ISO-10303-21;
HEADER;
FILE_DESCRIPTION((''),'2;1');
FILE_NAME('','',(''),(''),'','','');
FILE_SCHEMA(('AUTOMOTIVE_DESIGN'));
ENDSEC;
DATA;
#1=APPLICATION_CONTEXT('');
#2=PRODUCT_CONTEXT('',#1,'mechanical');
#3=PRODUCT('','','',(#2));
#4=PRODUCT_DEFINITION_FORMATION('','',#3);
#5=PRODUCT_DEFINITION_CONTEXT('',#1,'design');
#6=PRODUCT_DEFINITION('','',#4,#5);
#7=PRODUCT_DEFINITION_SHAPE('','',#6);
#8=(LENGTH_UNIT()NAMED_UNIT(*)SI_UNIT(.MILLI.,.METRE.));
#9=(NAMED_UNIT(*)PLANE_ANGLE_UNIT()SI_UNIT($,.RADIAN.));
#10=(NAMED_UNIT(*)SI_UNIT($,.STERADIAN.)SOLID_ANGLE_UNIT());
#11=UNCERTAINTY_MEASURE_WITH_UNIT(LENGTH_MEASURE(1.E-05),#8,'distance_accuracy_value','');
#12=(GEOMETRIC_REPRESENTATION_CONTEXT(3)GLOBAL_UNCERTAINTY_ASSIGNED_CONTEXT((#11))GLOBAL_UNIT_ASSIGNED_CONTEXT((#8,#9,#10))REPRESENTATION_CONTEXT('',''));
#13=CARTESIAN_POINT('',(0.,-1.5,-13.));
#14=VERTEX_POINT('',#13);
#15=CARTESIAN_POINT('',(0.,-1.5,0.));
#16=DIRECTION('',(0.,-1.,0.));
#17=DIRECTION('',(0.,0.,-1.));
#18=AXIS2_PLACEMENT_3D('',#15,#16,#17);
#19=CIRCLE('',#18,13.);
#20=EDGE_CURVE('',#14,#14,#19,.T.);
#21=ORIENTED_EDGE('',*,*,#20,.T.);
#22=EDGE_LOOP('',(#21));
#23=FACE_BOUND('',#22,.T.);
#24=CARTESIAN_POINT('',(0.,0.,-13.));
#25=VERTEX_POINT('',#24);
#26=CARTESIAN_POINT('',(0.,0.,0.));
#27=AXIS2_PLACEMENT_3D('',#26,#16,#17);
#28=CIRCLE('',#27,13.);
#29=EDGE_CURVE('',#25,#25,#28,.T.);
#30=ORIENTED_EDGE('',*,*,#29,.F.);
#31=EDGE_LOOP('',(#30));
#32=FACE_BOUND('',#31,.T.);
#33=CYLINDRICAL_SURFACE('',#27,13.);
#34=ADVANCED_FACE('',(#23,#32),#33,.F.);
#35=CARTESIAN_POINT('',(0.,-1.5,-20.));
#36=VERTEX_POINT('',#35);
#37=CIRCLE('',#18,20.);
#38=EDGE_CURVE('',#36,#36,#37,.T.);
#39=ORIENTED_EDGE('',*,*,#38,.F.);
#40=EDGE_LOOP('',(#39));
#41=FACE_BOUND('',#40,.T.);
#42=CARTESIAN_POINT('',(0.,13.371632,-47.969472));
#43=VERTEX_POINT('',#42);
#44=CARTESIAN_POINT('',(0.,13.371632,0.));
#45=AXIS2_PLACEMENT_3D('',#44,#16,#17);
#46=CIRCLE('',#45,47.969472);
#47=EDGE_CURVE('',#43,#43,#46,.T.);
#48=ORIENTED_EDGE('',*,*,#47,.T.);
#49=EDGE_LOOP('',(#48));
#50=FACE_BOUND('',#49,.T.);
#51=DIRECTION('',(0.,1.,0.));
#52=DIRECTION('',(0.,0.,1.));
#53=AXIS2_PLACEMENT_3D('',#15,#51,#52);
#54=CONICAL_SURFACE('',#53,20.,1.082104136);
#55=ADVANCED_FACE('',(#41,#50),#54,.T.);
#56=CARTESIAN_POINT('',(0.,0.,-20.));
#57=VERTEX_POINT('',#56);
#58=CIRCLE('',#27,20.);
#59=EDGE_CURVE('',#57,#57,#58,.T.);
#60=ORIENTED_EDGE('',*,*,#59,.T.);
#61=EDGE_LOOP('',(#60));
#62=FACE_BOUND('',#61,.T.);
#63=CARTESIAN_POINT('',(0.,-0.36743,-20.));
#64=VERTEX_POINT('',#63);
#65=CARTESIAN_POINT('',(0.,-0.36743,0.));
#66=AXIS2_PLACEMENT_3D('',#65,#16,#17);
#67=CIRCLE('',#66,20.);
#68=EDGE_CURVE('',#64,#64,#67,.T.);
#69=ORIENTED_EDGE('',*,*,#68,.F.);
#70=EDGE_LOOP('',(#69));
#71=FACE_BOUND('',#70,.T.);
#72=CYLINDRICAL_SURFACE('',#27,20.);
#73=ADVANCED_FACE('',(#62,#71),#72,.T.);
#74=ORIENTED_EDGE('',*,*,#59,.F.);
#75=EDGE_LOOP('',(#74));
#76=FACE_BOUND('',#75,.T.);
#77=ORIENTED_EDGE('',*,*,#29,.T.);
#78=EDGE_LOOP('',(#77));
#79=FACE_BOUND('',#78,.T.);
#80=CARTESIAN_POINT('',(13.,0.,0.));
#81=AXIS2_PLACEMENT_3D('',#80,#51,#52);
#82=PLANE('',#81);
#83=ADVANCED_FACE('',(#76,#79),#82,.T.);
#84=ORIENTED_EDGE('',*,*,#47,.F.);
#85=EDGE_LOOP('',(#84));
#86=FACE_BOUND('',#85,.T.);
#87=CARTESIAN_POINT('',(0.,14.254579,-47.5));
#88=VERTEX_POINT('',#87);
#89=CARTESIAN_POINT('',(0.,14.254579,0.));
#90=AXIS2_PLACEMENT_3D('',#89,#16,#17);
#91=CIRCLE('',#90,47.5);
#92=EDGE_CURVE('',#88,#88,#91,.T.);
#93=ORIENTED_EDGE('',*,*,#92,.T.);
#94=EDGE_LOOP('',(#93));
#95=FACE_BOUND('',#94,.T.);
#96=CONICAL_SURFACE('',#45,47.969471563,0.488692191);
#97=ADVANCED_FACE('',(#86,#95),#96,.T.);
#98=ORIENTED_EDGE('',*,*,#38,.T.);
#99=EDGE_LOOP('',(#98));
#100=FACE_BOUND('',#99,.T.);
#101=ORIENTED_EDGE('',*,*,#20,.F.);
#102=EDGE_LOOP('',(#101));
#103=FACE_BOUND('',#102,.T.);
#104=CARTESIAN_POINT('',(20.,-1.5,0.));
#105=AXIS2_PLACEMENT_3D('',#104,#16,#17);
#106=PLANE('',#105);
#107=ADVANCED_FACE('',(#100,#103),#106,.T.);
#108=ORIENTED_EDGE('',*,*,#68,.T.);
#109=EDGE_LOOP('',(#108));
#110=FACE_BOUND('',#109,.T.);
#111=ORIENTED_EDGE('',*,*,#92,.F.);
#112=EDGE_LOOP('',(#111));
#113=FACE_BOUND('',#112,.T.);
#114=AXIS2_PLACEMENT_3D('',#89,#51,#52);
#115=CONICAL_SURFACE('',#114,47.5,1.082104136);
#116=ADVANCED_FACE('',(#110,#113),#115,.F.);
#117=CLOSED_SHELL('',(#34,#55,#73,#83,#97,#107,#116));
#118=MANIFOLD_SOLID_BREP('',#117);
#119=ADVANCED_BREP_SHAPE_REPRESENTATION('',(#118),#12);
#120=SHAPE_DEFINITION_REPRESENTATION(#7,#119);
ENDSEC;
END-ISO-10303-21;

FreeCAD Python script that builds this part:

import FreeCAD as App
import Part
import Sketcher

V = App.Vector
Q = App.Units.Quantity

doc = App.newDocument("Part")
body = doc.addObject("PartDesign::Body", "Body")

sketch1 = doc.addObject("Sketcher::SketchObject", "Sketch")
body.addObject(sketch1)
sketch1.AttachmentSupport = (doc.XY_Plane, [""])
sketch1.MapMode = "FlatFace"
sketch1.addGeometry([
    Part.LineSegment(V(47.5, 14.254579, 0), V(20, -0.36743, 0)),
    Part.LineSegment(V(20, -0.36743, 0), V(20, 0, 0)),
    Part.LineSegment(V(20, 0, 0), V(13, 0, 0)),
    Part.LineSegment(V(13, 0, 0), V(13, -1.5, 0)),
    Part.LineSegment(V(13, -1.5, 0), V(20, -1.5, 0)),
    Part.LineSegment(V(20, -1.5, 0), V(47.969472, 13.371632, 0)),
    Part.LineSegment(V(47.969472, 13.371632, 0), V(47.5, 14.254579, 0)),
], False)
sketch1.addConstraint([
    Sketcher.Constraint("Coincident", 0, 2, 1, 1),
    Sketcher.Constraint("Coincident", 1, 2, 2, 1),
    Sketcher.Constraint("Coincident", 2, 2, 3, 1),
    Sketcher.Constraint("Coincident", 3, 2, 4, 1),
    Sketcher.Constraint("Coincident", 4, 2, 5, 1),
    Sketcher.Constraint("Coincident", 5, 2, 6, 1),
    Sketcher.Constraint("Coincident", 6, 2, 0, 1),
    Sketcher.Constraint("Vertical", 1),
    Sketcher.Constraint("Horizontal", 2),
    Sketcher.Constraint("Vertical", 3),
    Sketcher.Constraint("Horizontal", 4),
    Sketcher.Constraint("PointOnObject", 1, 2, -1),
    Sketcher.Constraint("Parallel", 0, 5),
    Sketcher.Constraint("Perpendicular", 5, 6),
    Sketcher.Constraint("Vertical", 1, 2, 4, 2),
    Sketcher.Constraint("DistanceX", 2, 2, 2, 1, 7.0),
    Sketcher.Constraint("Angle", 0, Q("-152 deg")),
    Sketcher.Constraint("Distance", 6, 1.0),
    Sketcher.Constraint("DistanceY", 3, 2, 3, 1, 1.5),
    Sketcher.Constraint("DistanceX", -1, 1, 0, 2, 20.0),
    Sketcher.Constraint("DistanceX", -1, 1, 6, 2, 47.5),
])
revolution = doc.addObject("PartDesign::Revolution", "Revolution")
body.addObject(revolution)
revolution.Profile = sketch1
revolution.ReferenceAxis = (sketch1, ["V_Axis"])
revolution.Angle = 360

doc.recompute()
